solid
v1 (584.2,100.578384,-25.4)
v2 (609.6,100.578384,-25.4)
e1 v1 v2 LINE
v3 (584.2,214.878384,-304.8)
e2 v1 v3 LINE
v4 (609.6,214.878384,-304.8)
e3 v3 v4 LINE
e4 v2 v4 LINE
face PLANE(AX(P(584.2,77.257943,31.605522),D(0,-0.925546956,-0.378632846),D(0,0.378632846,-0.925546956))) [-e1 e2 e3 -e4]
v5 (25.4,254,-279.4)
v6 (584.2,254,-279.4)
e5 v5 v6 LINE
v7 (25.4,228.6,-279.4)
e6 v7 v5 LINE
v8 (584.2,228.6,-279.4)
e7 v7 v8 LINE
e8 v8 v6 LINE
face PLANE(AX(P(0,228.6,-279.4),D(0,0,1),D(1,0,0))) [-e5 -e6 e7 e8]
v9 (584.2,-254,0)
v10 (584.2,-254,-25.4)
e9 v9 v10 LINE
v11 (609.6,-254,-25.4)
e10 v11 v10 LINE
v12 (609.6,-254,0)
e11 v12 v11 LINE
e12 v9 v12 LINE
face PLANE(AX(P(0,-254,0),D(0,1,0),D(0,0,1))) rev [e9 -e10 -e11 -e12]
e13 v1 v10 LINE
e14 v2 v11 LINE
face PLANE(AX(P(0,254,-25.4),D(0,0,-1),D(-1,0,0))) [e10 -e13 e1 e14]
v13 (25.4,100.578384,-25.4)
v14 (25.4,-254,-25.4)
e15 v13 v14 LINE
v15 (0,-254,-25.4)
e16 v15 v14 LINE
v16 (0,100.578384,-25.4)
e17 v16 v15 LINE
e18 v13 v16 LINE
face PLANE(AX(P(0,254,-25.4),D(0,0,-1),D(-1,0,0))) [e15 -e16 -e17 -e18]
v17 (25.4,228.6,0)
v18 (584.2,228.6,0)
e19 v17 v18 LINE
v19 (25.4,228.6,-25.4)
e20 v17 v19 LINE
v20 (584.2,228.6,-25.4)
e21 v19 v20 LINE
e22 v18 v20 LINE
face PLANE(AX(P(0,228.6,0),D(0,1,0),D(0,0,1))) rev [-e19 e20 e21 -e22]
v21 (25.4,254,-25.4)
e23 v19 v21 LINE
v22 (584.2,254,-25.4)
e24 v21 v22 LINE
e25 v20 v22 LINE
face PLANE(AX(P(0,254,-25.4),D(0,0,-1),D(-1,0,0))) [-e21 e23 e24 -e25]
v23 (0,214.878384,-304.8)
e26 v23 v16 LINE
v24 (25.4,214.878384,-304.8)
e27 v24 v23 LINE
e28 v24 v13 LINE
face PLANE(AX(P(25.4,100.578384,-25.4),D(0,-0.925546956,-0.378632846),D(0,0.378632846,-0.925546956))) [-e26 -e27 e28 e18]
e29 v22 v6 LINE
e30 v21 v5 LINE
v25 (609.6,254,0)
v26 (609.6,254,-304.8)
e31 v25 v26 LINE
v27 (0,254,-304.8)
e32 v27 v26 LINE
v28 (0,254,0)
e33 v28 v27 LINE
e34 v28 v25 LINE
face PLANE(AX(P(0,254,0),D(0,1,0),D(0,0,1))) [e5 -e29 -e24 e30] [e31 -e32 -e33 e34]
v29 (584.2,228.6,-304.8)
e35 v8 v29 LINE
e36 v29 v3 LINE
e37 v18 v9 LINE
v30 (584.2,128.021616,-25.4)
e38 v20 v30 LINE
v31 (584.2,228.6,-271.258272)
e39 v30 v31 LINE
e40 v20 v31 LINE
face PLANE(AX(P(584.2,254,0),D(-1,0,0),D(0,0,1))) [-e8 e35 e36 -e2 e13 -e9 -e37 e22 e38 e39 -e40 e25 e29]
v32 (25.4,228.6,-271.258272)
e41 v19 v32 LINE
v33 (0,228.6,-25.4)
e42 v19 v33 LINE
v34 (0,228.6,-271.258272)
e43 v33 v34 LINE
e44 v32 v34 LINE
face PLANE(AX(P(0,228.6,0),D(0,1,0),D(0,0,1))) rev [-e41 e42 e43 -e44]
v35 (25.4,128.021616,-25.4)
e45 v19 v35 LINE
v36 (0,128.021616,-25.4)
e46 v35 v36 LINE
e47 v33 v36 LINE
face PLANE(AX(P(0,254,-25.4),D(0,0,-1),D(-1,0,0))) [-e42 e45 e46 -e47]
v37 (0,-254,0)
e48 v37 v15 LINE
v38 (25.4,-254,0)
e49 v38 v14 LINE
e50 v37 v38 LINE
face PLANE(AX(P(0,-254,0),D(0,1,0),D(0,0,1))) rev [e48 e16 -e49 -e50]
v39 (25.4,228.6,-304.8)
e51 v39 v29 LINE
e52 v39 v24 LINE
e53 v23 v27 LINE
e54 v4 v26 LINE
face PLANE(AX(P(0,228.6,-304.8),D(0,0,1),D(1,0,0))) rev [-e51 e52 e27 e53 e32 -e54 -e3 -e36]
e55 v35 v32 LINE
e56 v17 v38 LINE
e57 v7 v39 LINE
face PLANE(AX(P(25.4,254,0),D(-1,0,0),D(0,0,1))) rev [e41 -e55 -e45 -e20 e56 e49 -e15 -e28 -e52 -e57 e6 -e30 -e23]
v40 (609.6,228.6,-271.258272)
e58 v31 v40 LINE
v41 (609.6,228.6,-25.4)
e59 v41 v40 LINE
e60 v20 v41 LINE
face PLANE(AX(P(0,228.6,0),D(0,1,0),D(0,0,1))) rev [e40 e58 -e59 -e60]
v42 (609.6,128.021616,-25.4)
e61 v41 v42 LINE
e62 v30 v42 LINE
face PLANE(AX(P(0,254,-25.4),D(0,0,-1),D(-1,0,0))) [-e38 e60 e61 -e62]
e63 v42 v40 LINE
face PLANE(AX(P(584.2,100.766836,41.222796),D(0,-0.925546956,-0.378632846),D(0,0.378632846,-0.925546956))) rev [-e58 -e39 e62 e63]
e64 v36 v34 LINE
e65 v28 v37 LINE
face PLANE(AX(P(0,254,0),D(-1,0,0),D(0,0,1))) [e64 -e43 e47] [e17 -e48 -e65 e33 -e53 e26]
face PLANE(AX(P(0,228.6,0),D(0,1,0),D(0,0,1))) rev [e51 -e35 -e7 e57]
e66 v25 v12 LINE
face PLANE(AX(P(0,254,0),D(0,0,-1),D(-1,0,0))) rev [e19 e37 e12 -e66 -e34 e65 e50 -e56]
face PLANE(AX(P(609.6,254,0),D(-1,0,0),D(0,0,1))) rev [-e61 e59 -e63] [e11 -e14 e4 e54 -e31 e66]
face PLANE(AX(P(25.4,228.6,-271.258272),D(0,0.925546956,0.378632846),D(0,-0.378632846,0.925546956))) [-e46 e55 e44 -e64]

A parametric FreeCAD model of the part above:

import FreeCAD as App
import Part
import Sketcher

V = App.Vector
Q = App.Units.Quantity


def add_polygon(sketch, points):
    """Adds a closed chain of lines whose ends are joined by coincident constraints."""
    first, n = sketch.GeometryCount, len(points)
    for a, b in zip(points, points[1:] + points[:1]):
        sketch.addGeometry(Part.LineSegment(App.Vector(*a, 0), App.Vector(*b, 0)), False)
    for i in range(n):
        sketch.addConstraint(Sketcher.Constraint("Coincident", first + i, 2, first + (i + 1) % n, 1))

doc = App.newDocument("Part")
body = doc.addObject("PartDesign::Body", "Body")

# Sketch on XZ plane
sketch1 = doc.addObject("Sketcher::SketchObject", "Sketch")
body.addObject(sketch1)
sketch1.AttachmentSupport = (doc.XZ_Plane, [""])
sketch1.MapMode = "FlatFace"
add_polygon(sketch1, [(0, -25.4), (0, 0), (25.4, 0), (25.4, -25.4)])  # lines 0-3
sketch1.addConstraint([
    Sketcher.Constraint("Vertical", 0),
    Sketcher.Constraint("Horizontal", 1),
    Sketcher.Constraint("Vertical", 2),
    Sketcher.Constraint("Horizontal", 3),
    Sketcher.Constraint("Coincident", 0, 2, -1, 1),
    Sketcher.Constraint("Equal", 3, 0),
    Sketcher.Constraint("DistanceX", 1, 1, 1, 2, Q("1 in")),
])
pad1 = doc.addObject("PartDesign::Pad", "Pad")
body.addObject(pad1)
pad1.Profile = sketch1
pad1.Length = Q("20 in")
pad1.Midplane = True
body2 = doc.addObject("PartDesign::Body", "Body001")

# Sketch on XZ plane
sketch2 = doc.addObject("Sketcher::SketchObject", "Sketch001")
body2.addObject(sketch2)
sketch2.AttachmentSupport = (doc.getObject("XZ_Plane001"), [""])
sketch2.MapMode = "FlatFace"
add_polygon(sketch2, [(584.2, -25.4), (584.2, 0), (609.6, 0), (609.6, -25.4)])  # lines 0-3
sketch2.addConstraint([
    Sketcher.Constraint("Vertical", 0),
    Sketcher.Constraint("Horizontal", 1),
    Sketcher.Constraint("Vertical", 2),
    Sketcher.Constraint("Horizontal", 3),
    Sketcher.Constraint("PointOnObject", 0, 2, -1),
    Sketcher.Constraint("Equal", 3, 0),
    Sketcher.Constraint("DistanceX", 1, 1, 1, 2, Q("1 in")),
    Sketcher.Constraint("DistanceX", -1, 1, 0, 2, Q("23 in")),
])
pad2 = doc.addObject("PartDesign::Pad", "Pad001")
body2.addObject(pad2)
pad2.Profile = sketch2
pad2.Length = Q("20 in")
pad2.Midplane = True
body.AllowCompound = True
doc.recompute()

boolean = doc.addObject("PartDesign::Boolean", "Boolean")
body.addObject(boolean)
boolean.Type = "Fuse"
boolean.addObjects([body2])

# Sketch on XZ plane
sketch3 = doc.addObject("Sketcher::SketchObject", "Sketch002")
body.addObject(sketch3)
sketch3.AttachmentSupport = (doc.XZ_Plane, [""])
sketch3.MapMode = "FlatFace"
sketch3.AttachmentOffset = App.Placement(V(0, 0, -10 * 25.4), App.Rotation())
add_polygon(sketch3, [(0, -304.8), (0, -25.4), (25.4, -25.4), (25.4, -279.4), (584.2, -279.4), (584.2, -25.4), (609.6, -25.4), (609.6, -304.8)])  # lines 0-7
add_polygon(sketch3, [(25.4, -25.4), (25.4, 0), (584.2, 0), (584.2, -25.4)])  # lines 8-11
sketch3.addConstraint([
    Sketcher.Constraint("Vertical", 0),
    Sketcher.Constraint("Horizontal", 1),
    Sketcher.Constraint("Vertical", 2),
    Sketcher.Constraint("Horizontal", 3),
    Sketcher.Constraint("Vertical", 4),
    Sketcher.Constraint("Horizontal", 5),
    Sketcher.Constraint("Vertical", 6),
    Sketcher.Constraint("Horizontal", 7),
    Sketcher.Constraint("Vertical", 8),
    Sketcher.Constraint("Horizontal", 9),
    Sketcher.Constraint("Vertical", 10),
    Sketcher.Constraint("Horizontal", 11),
    Sketcher.Constraint("Coincident", 10, 2, 4, 2),
    Sketcher.Constraint("Coincident", 11, 2, 1, 2),
    Sketcher.Constraint("PointOnObject", 0, 2, -2),
    Sketcher.Constraint("PointOnObject", 8, 2, -1),
    Sketcher.Constraint("Equal", 1, 5),
    Sketcher.Constraint("Equal", 5, 8),
    Sketcher.Constraint("DistanceX", 1, 1, 1, 2, Q("1 in")),
    Sketcher.Constraint("DistanceX", 3, 1, 3, 2, Q("22 in")),
    Sketcher.Constraint("DistanceY", 0, 1, 0, 2, Q("11 in")),
    Sketcher.Constraint("DistanceY", 2, 2, 2, 1, Q("10 in")),
])
pad3 = doc.addObject("PartDesign::Pad", "Pad002")
body.addObject(pad3)
pad3.Profile = sketch3
pad3.Length = Q("1 in")

# Sketch on YZ plane
sketch4 = doc.addObject("Sketcher::SketchObject", "Sketch003")
body.addObject(sketch4)
sketch4.AttachmentSupport = (doc.YZ_Plane, [""])
sketch4.MapMode = "FlatFace"
sketch4.AttachmentOffset = App.Placement(V(0, 0, 24 * 25.4), App.Rotation())
add_polygon(sketch4, [(128.021616, -25.4), (100.578384, -25.4), (214.878384, -304.8), (228.6, -304.8), (228.6, -271.258272)])  # lines 0-4
sketch4.addConstraint([
    Sketcher.Constraint("Horizontal", 0),
    Sketcher.Constraint("Horizontal", 2),
    Sketcher.Constraint("Vertical", 3),
    Sketcher.Constraint("Parallel", 1, 4),
    Sketcher.Constraint("DistanceY", 0, 2, -1, 1, Q("1 in")),
    Sketcher.Constraint("DistanceY", 1, 2, -1, 1, Q("12 in")),
    Sketcher.Constraint("DistanceX", -1, 1, 2, 2, Q("9 in")),
    Sketcher.Constraint("DistanceX", 0, 2, 1, 2, Q("4.5 in")),
    Sketcher.Constraint("DistanceY", 3, 1, 3, 2, 33.541728),
    Sketcher.Constraint("DistanceX", 0, 2, 0, 1, 27.443232),
])
pad4 = doc.addObject("PartDesign::Pad", "Pad003")
body.addObject(pad4)
pad4.Profile = sketch4
pad4.Length = Q("1 in")
pad4.Reversed = True

# Sketch on YZ plane
sketch5 = doc.addObject("Sketcher::SketchObject", "Sketch004")
body.addObject(sketch5)
sketch5.AttachmentSupport = (doc.YZ_Plane, [""])
sketch5.MapMode = "FlatFace"
add_polygon(sketch5, [(128.021616, -25.4), (228.6, -271.258272), (228.6, -304.8), (214.878384, -304.8), (100.578384, -25.4)])  # lines 0-4
sketch5.addConstraint([
    Sketcher.Constraint("Vertical", 1),
    Sketcher.Constraint("Horizontal", 2),
    Sketcher.Constraint("Horizontal", 4),
    Sketcher.Constraint("Parallel", 0, 3),
    Sketcher.Constraint("DistanceX", -1, 1, 0, 2, Q("9 in")),
    Sketcher.Constraint("DistanceY", 1, 2, -1, 1, Q("12 in")),
    Sketcher.Constraint("DistanceY", 3, 2, -1, 1, Q("1 in")),
    Sketcher.Constraint("DistanceX", 3, 2, 2, 2, Q("4.5 in")),
    Sketcher.Constraint("DistanceY", 1, 2, 1, 1, 33.541728),
    Sketcher.Constraint("DistanceX", 2, 2, 2, 1, 13.721616),
])
pad5 = doc.addObject("PartDesign::Pad", "Pad004")
body.addObject(pad5)
pad5.Profile = sketch5
pad5.Length = Q("1 in")

doc.recompute()
